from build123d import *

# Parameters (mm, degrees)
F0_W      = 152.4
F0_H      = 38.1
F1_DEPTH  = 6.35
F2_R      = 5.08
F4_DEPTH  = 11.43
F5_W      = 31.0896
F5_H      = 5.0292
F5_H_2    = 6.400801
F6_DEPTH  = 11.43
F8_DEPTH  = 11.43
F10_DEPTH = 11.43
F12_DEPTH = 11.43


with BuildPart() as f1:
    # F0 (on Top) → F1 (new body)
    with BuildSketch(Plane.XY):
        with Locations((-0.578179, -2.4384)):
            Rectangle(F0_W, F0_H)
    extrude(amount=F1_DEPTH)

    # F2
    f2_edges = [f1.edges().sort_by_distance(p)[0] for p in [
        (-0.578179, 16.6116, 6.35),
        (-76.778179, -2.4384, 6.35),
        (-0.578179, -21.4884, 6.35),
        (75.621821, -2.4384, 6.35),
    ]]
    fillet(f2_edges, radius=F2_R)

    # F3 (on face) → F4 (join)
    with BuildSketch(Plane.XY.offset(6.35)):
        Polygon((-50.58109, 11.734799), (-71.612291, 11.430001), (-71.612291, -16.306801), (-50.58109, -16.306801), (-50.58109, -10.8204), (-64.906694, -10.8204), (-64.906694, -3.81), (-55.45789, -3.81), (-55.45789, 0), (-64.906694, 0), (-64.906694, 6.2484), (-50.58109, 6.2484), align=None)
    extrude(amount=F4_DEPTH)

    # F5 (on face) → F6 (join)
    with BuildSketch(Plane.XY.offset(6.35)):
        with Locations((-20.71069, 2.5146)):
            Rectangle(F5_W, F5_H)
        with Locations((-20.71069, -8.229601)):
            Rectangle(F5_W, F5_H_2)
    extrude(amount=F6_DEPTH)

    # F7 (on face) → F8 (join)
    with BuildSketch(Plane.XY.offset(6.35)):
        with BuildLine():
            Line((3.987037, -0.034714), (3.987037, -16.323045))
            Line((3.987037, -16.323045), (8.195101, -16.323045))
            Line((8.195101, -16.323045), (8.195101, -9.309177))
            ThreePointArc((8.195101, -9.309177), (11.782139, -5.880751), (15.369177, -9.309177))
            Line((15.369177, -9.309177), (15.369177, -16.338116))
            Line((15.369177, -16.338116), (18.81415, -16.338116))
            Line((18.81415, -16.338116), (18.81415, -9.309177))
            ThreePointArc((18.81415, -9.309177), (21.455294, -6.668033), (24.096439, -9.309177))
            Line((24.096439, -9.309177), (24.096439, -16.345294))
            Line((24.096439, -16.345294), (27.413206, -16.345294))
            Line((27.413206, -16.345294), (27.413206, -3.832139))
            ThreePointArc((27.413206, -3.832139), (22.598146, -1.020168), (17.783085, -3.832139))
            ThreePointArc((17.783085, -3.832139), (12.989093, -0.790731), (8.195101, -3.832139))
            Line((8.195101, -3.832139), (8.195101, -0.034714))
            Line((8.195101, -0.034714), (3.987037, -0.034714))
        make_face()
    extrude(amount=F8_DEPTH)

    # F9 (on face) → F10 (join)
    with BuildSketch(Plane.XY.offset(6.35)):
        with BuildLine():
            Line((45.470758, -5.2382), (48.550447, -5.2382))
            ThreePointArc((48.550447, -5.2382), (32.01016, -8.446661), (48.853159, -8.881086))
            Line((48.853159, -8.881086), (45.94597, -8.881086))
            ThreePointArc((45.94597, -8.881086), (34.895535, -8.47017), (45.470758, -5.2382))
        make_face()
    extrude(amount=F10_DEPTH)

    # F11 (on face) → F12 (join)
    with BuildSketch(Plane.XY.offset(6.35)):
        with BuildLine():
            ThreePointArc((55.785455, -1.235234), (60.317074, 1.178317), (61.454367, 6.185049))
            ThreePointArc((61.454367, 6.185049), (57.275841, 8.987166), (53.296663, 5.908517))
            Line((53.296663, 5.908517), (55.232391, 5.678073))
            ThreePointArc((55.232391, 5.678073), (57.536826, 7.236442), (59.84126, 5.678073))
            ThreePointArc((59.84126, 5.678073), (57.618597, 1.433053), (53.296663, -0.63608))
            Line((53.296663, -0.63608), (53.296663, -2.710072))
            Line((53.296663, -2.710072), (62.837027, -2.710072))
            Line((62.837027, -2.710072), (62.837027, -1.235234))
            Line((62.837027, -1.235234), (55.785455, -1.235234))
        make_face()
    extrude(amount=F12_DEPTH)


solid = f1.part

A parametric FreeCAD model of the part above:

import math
import FreeCAD as App
import Part
import Sketcher
from FreeCAD import Vector
Q = App.Units.Quantity


def edges_at(feature, points):
    """Names of the edges that pass closest to the given points."""
    edges = feature.Shape.Edges
    near = lambda p: min(range(len(edges)), key=lambda i: edges[i].distToShape(Part.Vertex(*p))[0])
    return sorted({f"Edge{near(p) + 1}" for p in points})


def add_polygon(sketch, points):
    """Adds a closed chain of lines whose ends are joined by coincident constraints."""
    first, n = sketch.GeometryCount, len(points)
    for a, b in zip(points, points[1:] + points[:1]):
        sketch.addGeometry(Part.LineSegment(App.Vector(*a, 0), App.Vector(*b, 0)), False)
    for i in range(n):
        sketch.addConstraint(Sketcher.Constraint("Coincident", first + i, 2, first + (i + 1) % n, 1))

doc = App.newDocument("Part")
params = doc.addObject("Spreadsheet::Sheet", "Params")
for row, (alias, value) in enumerate([
    ("sketch1_width", "6 in"),
    ("sketch1_height", "1.5 in"),
    ("pad1_length", "0.25 in"),
    ("fillet_radius", "0.2 in"),
    ("sketch2_height", "0.15 in"),
    ("sketch2_width", "0.828 in"),
    ("sketch2_width2", "0.5640002 in"),
    ("sketch2_width3", "0.3720002 in"),
    ("sketch2_height2", "1.0920001 in"),
    ("pad2_length", "0.45 in"),
    ("sketch3_width", "1.224 in"),
    ("sketch3_height", "0.198 in"),
    ("sketch3_height2", "0.252 in"),
    ("pad3_length", "0.45 in"),
    ("pad4_length", "0.45 in"),
    ("pad5_length", "0.45 in"),
    ("pad6_length", "0.45 in"),
], start=1):
    params.set(f"A{row}", alias)
    params.set(f"B{row}", "=" + value)
    params.setAlias(f"B{row}", alias)

body = doc.addObject("PartDesign::Body", "Body")

sketch1 = doc.addObject("Sketcher::SketchObject", "Sketch")
body.addObject(sketch1)
sketch1.AttachmentSupport = (doc.XY_Plane, [""])
sketch1.MapMode = "FlatFace"
add_polygon(sketch1, [(-77, 17), (-77, -21), (76, -21), (76, 17)])
sketch1.addConstraint([
    Sketcher.Constraint("Vertical", 0),
    Sketcher.Constraint("Horizontal", 1),
    Sketcher.Constraint("Vertical", 2),
    Sketcher.Constraint("Horizontal", 3),
    Sketcher.Constraint("DistanceX", 1, 1, 1, 2, Q("6 in")),
    Sketcher.Constraint("DistanceY", 0, 2, 0, 1, Q("1.5 in")),
    Sketcher.Constraint("DistanceY", 0, 2, -1, 1, Q("0.846 in")),
    Sketcher.Constraint("DistanceX", 0, 2, -1, 1, 76.778179),
])
sketch1.setExpression("Constraints[8]", "Params.sketch1_width")
sketch1.setExpression("Constraints[9]", "Params.sketch1_height")
pad1 = doc.addObject("PartDesign::Pad", "Pad")
body.addObject(pad1)
pad1.Profile = sketch1
pad1.setExpression("Length", "Params.pad1_length")
doc.recompute()

fillet = doc.addObject("PartDesign::Fillet", "Fillet")
body.addObject(fillet)
fillet.Base = (pad1, edges_at(pad1, [
    (-0.578, 16.612, 6.35),
    (-76.778, -2.438, 6.35),
    (-0.578, -21.488, 6.35),
    (75.622, -2.438, 6.35),
]))
fillet.setExpression("Radius", "Params.fillet_radius")

sketch2 = doc.addObject("Sketcher::SketchObject", "Sketch001")
body.addObject(sketch2)
sketch2.AttachmentSupport = (doc.XY_Plane, [""])
sketch2.MapMode = "FlatFace"
sketch2.AttachmentOffset = App.Placement(Vector(0, 0, 0.25 * 25.4), App.Rotation())
add_polygon(sketch2, [(-50.6, 11.7), (-71.6, 11.4), (-71.6, -16.3), (-50.6, -16.3), (-50.6, -10.8), (-64.9, -10.8), (-64.9, -3.8), (-55.5, -3.8), (-55.5, 0), (-64.9, 0), (-64.9, 6.2), (-50.6, 6.2)])
sketch2.addConstraint([
    Sketcher.Constraint("Vertical", 1),
    Sketcher.Constraint("Horizontal", 2),
    Sketcher.Constraint("Vertical", 3),
    Sketcher.Constraint("Horizontal", 4),
    Sketcher.Constraint("Vertical", 5),
    Sketcher.Constraint("Horizontal", 6),
    Sketcher.Constraint("Vertical", 7),
    Sketcher.Constraint("Horizontal", 8),
    Sketcher.Constraint("Vertical", 9),
    Sketcher.Constraint("Horizontal", 10),
    Sketcher.Constraint("Vertical", 11),
    Sketcher.Constraint("PointOnObject", 7, 2, -1),
    Sketcher.Constraint("Vertical", 5, 2, 8, 2),
    Sketcher.Constraint("Vertical", 3, 2, 10, 2),
    Sketcher.Constraint("DistanceY", 7, 1, 7, 2, Q("0.15 in")),
    Sketcher.Constraint("DistanceY", 5, 2, 0, 2, Q("0.6 in")),
    Sketcher.Constraint("DistanceX", 2, 1, 2, 2, Q("0.828 in")),
    Sketcher.Constraint("DistanceX", 4, 2, 4, 1, Q("0.5640002 in")),
    Sketcher.Constraint("DistanceX", 6, 1, 6, 2, Q("0.3720002 in")),
    Sketcher.Constraint("DistanceY", 1, 2, 1, 1, Q("1.0920001 in")),
    Sketcher.Constraint("DistanceY", 3, 1, 3, 2, Q("0.216 in")),
    Sketcher.Constraint("DistanceY", 9, 1, 9, 2, Q("0.246 in")),
    Sketcher.Constraint("DistanceY", 11, 1, 11, 2, Q("0.216 in")),
    Sketcher.Constraint("DistanceX", 0, 2, -1, 1, 71.612291),
])
sketch2.setExpression("Constraints[26]", "Params.sketch2_height")
sketch2.setExpression("Constraints[28]", "Params.sketch2_width")
sketch2.setExpression("Constraints[29]", "Params.sketch2_width2")
sketch2.setExpression("Constraints[30]", "Params.sketch2_width3")
sketch2.setExpression("Constraints[31]", "Params.sketch2_height2")
pad2 = doc.addObject("PartDesign::Pad", "Pad001")
body.addObject(pad2)
pad2.Profile = sketch2
pad2.setExpression("Length", "Params.pad2_length")

sketch3 = doc.addObject("Sketcher::SketchObject", "Sketch002")
body.addObject(sketch3)
sketch3.AttachmentSupport = (doc.XY_Plane, [""])
sketch3.MapMode = "FlatFace"
sketch3.AttachmentOffset = App.Placement(Vector(0, 0, 0.25 * 25.4), App.Rotation())
add_polygon(sketch3, [(-36, 5), (-36, 0), (-5, 0), (-5, 5)])
add_polygon(sketch3, [(-36, -5), (-36, -11), (-5, -11), (-5, -5)])
sketch3.addConstraint([
    Sketcher.Constraint("Vertical", 0),
    Sketcher.Constraint("Horizontal", 1),
    Sketcher.Constraint("Vertical", 2),
    Sketcher.Constraint("Horizontal", 3),
    Sketcher.Constraint("Vertical", 4),
    Sketcher.Constraint("Horizontal", 5),
    Sketcher.Constraint("Vertical", 6),
    Sketcher.Constraint("Horizontal", 7),
    Sketcher.Constraint("Symmetric", 2, 2, 6, 2, -1),
    Sketcher.Constraint("PointOnObject", 0, 2, -1),
    Sketcher.Constraint("Vertical", 3, 2, 4, 2),
    Sketcher.Constraint("DistanceX", 1, 1, 1, 2, Q("1.224 in")),
    Sketcher.Constraint("DistanceY", 0, 2, 0, 1, Q("0.198 in")),
    Sketcher.Constraint("DistanceY", 4, 2, 4, 1, Q("0.252 in")),
    Sketcher.Constraint("DistanceX", 0, 2, -1, 1, 36.25549),
])
sketch3.setExpression("Constraints[19]", "Params.sketch3_width")
sketch3.setExpression("Constraints[20]", "Params.sketch3_height")
sketch3.setExpression("Constraints[21]", "Params.sketch3_height2")
pad3 = doc.addObject("PartDesign::Pad", "Pad002")
body.addObject(pad3)
pad3.Profile = sketch3
pad3.setExpression("Length", "Params.pad3_length")

sketch4 = doc.addObject("Sketcher::SketchObject", "Sketch003")
body.addObject(sketch4)
sketch4.AttachmentSupport = (doc.XY_Plane, [""])
sketch4.MapMode = "FlatFace"
sketch4.AttachmentOffset = App.Placement(Vector(0, 0, 0.25 * 25.4), App.Rotation())
sketch4.addGeometry([
    Part.LineSegment(Vector(4, 0, 0), Vector(4, -16.3, 0)),
    Part.LineSegment(Vector(4, -16.3, 0), Vector(8.2, -16.3, 0)),
    Part.LineSegment(Vector(8.2, -16.3, 0), Vector(8.2, -9.3, 0)),
    Part.ArcOfCircle(Part.Circle(Vector(11.8, -9.5, 0), Vector(0, 0, 1), 3.6), math.radians(3), math.radians(177)),
    Part.LineSegment(Vector(15.4, -9.3, 0), Vector(15.4, -16.3, 0)),
    Part.LineSegment(Vector(15.4, -16.3, 0), Vector(18.8, -16.3, 0)),
    Part.LineSegment(Vector(18.8, -16.3, 0), Vector(18.8, -9.3, 0)),
    Part.ArcOfCircle(Part.Circle(Vector(21.5, -9.3, 0), Vector(0, 0, 1), 2.6), math.radians(0), math.radians(180)),
    Part.LineSegment(Vector(24.1, -9.3, 0), Vector(24.1, -16.3, 0)),
    Part.LineSegment(Vector(24.1, -16.3, 0), Vector(27.4, -16.3, 0)),
    Part.LineSegment(Vector(27.4, -16.3, 0), Vector(27.4, -3.8, 0)),
    Part.ArcOfCircle(Part.Circle(Vector(22.6, -6.5, 0), Vector(0, 0, 1), 5.5), math.radians(29), math.radians(151)),
    Part.ArcOfCircle(Part.Circle(Vector(13, -6.1, 0), Vector(0, 0, 1), 5.3), math.radians(25), math.radians(155)),
    Part.LineSegment(Vector(8.2, -3.8, 0), Vector(8.2, 0, 0)),
    Part.LineSegment(Vector(8.2, 0, 0), Vector(4, 0, 0)),
], False)
sketch4.addConstraint([
    Sketcher.Constraint("Coincident", 0, 2, 1, 1),
    Sketcher.Constraint("Coincident", 1, 2, 2, 1),
    Sketcher.Constraint("Coincident", 2, 2, 3, 2),
    Sketcher.Constraint("Coincident", 3, 1, 4, 1),
    Sketcher.Constraint("Coincident", 4, 2, 5, 1),
    Sketcher.Constraint("Coincident", 5, 2, 6, 1),
    Sketcher.Constraint("Tangent", 6, 2, 7, 2),
    Sketcher.Constraint("Tangent", 7, 1, 8, 1),
    Sketcher.Constraint("Coincident", 8, 2, 9, 1),
    Sketcher.Constraint("Coincident", 9, 2, 10, 1),
    Sketcher.Constraint("Coincident", 10, 2, 11, 1),
    Sketcher.Constraint("Coincident", 11, 2, 12, 1),
    Sketcher.Constraint("Coincident", 12, 2, 13, 1),
    Sketcher.Constraint("Coincident", 13, 2, 14, 1),
    Sketcher.Constraint("Coincident", 14, 2, 0, 1),
    Sketcher.Constraint("Vertical", 0),
    Sketcher.Constraint("Horizontal", 1),
    Sketcher.Constraint("Vertical", 2),
    Sketcher.Constraint("Vertical", 4),
    Sketcher.Constraint("Horizontal", 5),
    Sketcher.Constraint("Vertical", 6),
    Sketcher.Constraint("Vertical", 8),
    Sketcher.Constraint("Horizontal", 9),
    Sketcher.Constraint("Vertical", 10),
    Sketcher.Constraint("Vertical", 13),
    Sketcher.Constraint("Horizontal", 14),
    Sketcher.Constraint("Horizontal", 7, 3, 2, 2),
    Sketcher.Constraint("Horizontal", 2, 2, 3, 1),
    Sketcher.Constraint("Horizontal", 10, 2, 11, 2),
    Sketcher.Constraint("Horizontal", 11, 2, 12, 2),
    Sketcher.Constraint("Vertical", 2, 2, 12, 2),
    Sketcher.Constraint("Radius", 3, 3.590707),
    Sketcher.Constraint("Radius", 7, 2.641144),
    Sketcher.Constraint("Radius", 11, 5.528504),
    Sketcher.Constraint("Radius", 12, 5.298947),
    Sketcher.Constraint("DistanceY", 0, 2, 0, 1, 16.288331),
    Sketcher.Constraint("DistanceY", 2, 1, 2, 2, 7.013868),
    Sketcher.Constraint("DistanceY", 4, 2, 4, 1, 7.028939),
    Sketcher.Constraint("DistanceX", -1, 1, 1, 2, 8.195101),
    Sketcher.Constraint("DistanceX", 12, 3, 7, 3, 8.466202),
    Sketcher.Constraint("DistanceY", 7, 3, 12, 3, 3.219499),
    Sketcher.Constraint("DistanceX", 1, 1, 1, 2, 4.208064),
    Sketcher.Constraint("DistanceX", 5, 1, 5, 2, 3.444973),
    Sketcher.Constraint("DistanceX", 9, 1, 9, 2, 3.316767),
    Sketcher.Constraint("DistanceY", 8, 2, 8, 1, 7.036117),
    Sketcher.Constraint("DistanceY", 10, 1, 10, 2, 12.513155),
    Sketcher.Constraint("DistanceY", 12, 3, -1, 1, 6.089678),
])
pad4 = doc.addObject("PartDesign::Pad", "Pad003")
body.addObject(pad4)
pad4.Profile = sketch4
pad4.setExpression("Length", "Params.pad4_length")

sketch5 = doc.addObject("Sketcher::SketchObject", "Sketch004")
body.addObject(sketch5)
sketch5.AttachmentSupport = (doc.XY_Plane, [""])
sketch5.MapMode = "FlatFace"
sketch5.AttachmentOffset = App.Placement(Vector(0, 0, 0.25 * 25.4), App.Rotation())
sketch5.addGeometry([
    Part.LineSegment(Vector(45.5, -5.2, 0), Vector(48.6, -5.2, 0)),
    Part.ArcOfCircle(Part.Circle(Vector(40.5, -7.7, 0), Vector(0, 0, 1), 8.5), math.radians(17), math.radians(352)),
    Part.LineSegment(Vector(48.9, -8.9, 0), Vector(45.9, -8.9, 0)),
    Part.ArcOfCircle(Part.Circle(Vector(40.5, -7.7, 0), Vector(0, 0, 1), 5.6), math.radians(27), math.radians(348)),
], False)
sketch5.addConstraint([
    Sketcher.Constraint("Coincident", 0, 2, 1, 1),
    Sketcher.Constraint("Coincident", 1, 2, 2, 1),
    Sketcher.Constraint("Coincident", 2, 2, 3, 2),
    Sketcher.Constraint("Coincident", 3, 1, 0, 1),
    Sketcher.Constraint("Horizontal", 0),
    Sketcher.Constraint("Horizontal", 2),
    Sketcher.Constraint("Coincident", 3, 3, 1, 3),
    Sketcher.Constraint("Radius", 1, 8.474309),
    Sketcher.Constraint("Radius", 3, 5.606934),
    Sketcher.Constraint("DistanceX", 0, 1, 0, 2, 3.079689),
    Sketcher.Constraint("DistanceX", 2, 2, 2, 1, 2.907189),
    Sketcher.Constraint("DistanceY", 0, 2, -1, 1, 5.2382),
    Sketcher.Constraint("DistanceX", -1, 1, 1, 2, 48.853159),
])
pad5 = doc.addObject("PartDesign::Pad", "Pad004")
body.addObject(pad5)
pad5.Profile = sketch5
pad5.setExpression("Length", "Params.pad5_length")

sketch6 = doc.addObject("Sketcher::SketchObject", "Sketch005")
body.addObject(sketch6)
sketch6.AttachmentSupport = (doc.XY_Plane, [""])
sketch6.MapMode = "FlatFace"
sketch6.AttachmentOffset = App.Placement(Vector(0, 0, 0.25 * 25.4), App.Rotation())
sketch6.addGeometry([
    Part.ArcOfCircle(Part.Circle(Vector(55.4, 4.9, 0), Vector(0, 0, 1), 6.2), math.radians(-87), math.radians(12)),
    Part.ArcOfCircle(Part.Circle(Vector(57.4, 4.7, 0), Vector(0, 0, 1), 4.3), math.radians(20), math.radians(164)),
    Part.LineSegment(Vector(53.3, 5.9, 0), Vector(55.2, 5.7, 0)),
    Part.ArcOfCircle(Part.Circle(Vector(57.5, 4.8, 0), Vector(0, 0, 1), 2.5), math.radians(22), math.radians(158)),
    Part.ArcOfCircle(Part.Circle(Vector(52.3, 6.9, 0), Vector(0, 0, 1), 7.6), math.radians(-83), math.radians(-9)),
    Part.LineSegment(Vector(53.3, -0.6, 0), Vector(53.3, -2.7, 0)),
    Part.LineSegment(Vector(53.3, -2.7, 0), Vector(62.8, -2.7, 0)),
    Part.LineSegment(Vector(62.8, -2.7, 0), Vector(62.8, -1.2, 0)),
    Part.LineSegment(Vector(62.8, -1.2, 0), Vector(55.8, -1.2, 0)),
], False)
sketch6.addConstraint([
    Sketcher.Constraint("Coincident", 0, 2, 1, 1),
    Sketcher.Constraint("Coincident", 1, 2, 2, 1),
    Sketcher.Constraint("Coincident", 2, 2, 3, 2),
    Sketcher.Constraint("Coincident", 3, 1, 4, 2),
    Sketcher.Constraint("Coincident", 4, 1, 5, 1),
    Sketcher.Constraint("Coincident", 5, 2, 6, 1),
    Sketcher.Constraint("Coincident", 6, 2, 7, 1),
    Sketcher.Constraint("Coincident", 7, 2, 8, 1),
    Sketcher.Constraint("Coincident", 8, 2, 0, 1),
    Sketcher.Constraint("Vertical", 5),
    Sketcher.Constraint("Horizontal", 6),
    Sketcher.Constraint("Vertical", 7),
    Sketcher.Constraint("Horizontal", 8),
    Sketcher.Constraint("Horizontal", 2, 2, 3, 1),
    Sketcher.Constraint("Vertical", 1, 2, 4, 1),
    Sketcher.Constraint("Radius", 1, 4.30172),
    Sketcher.Constraint("Radius", 0, 6.171267),
    Sketcher.Constraint("Radius", 3, 2.483023),
    Sketcher.Constraint("Radius", 4, 7.594043),
    Sketcher.Constraint("DistanceY", 5, 2, 5, 1, 2.073992),
    Sketcher.Constraint("DistanceX", 4, 3, 1, 3, 5.0757),
    Sketcher.Constraint("DistanceY", 1, 3, 1, 2, 1.220601),
    Sketcher.Constraint("DistanceY", 3, 3, 1, 2, 1.155098),
    Sketcher.Constraint("DistanceY", 4, 1, 3, 3, 5.389499),
    Sketcher.Constraint("DistanceX", 3, 3, 6, 2, 5.300202),
    Sketcher.Constraint("DistanceX", 6, 1, 6, 2, 9.540364),
    Sketcher.Constraint("DistanceX", 8, 2, 8, 1, 7.051572),
    Sketcher.Constraint("DistanceY", 7, 1, 7, 2, 1.474838),
    Sketcher.Constraint("DistanceX", -1, 1, 0, 3, 55.413151),
    Sketcher.Constraint("DistanceX", -1, 1, 1, 3, 57.421578),
    Sketcher.Constraint("DistanceY", -1, 1, 3, 3, 4.753419),
])
pad6 = doc.addObject("PartDesign::Pad", "Pad005")
body.addObject(pad6)
pad6.Profile = sketch6
pad6.setExpression("Length", "Params.pad6_length")

doc.recompute()
